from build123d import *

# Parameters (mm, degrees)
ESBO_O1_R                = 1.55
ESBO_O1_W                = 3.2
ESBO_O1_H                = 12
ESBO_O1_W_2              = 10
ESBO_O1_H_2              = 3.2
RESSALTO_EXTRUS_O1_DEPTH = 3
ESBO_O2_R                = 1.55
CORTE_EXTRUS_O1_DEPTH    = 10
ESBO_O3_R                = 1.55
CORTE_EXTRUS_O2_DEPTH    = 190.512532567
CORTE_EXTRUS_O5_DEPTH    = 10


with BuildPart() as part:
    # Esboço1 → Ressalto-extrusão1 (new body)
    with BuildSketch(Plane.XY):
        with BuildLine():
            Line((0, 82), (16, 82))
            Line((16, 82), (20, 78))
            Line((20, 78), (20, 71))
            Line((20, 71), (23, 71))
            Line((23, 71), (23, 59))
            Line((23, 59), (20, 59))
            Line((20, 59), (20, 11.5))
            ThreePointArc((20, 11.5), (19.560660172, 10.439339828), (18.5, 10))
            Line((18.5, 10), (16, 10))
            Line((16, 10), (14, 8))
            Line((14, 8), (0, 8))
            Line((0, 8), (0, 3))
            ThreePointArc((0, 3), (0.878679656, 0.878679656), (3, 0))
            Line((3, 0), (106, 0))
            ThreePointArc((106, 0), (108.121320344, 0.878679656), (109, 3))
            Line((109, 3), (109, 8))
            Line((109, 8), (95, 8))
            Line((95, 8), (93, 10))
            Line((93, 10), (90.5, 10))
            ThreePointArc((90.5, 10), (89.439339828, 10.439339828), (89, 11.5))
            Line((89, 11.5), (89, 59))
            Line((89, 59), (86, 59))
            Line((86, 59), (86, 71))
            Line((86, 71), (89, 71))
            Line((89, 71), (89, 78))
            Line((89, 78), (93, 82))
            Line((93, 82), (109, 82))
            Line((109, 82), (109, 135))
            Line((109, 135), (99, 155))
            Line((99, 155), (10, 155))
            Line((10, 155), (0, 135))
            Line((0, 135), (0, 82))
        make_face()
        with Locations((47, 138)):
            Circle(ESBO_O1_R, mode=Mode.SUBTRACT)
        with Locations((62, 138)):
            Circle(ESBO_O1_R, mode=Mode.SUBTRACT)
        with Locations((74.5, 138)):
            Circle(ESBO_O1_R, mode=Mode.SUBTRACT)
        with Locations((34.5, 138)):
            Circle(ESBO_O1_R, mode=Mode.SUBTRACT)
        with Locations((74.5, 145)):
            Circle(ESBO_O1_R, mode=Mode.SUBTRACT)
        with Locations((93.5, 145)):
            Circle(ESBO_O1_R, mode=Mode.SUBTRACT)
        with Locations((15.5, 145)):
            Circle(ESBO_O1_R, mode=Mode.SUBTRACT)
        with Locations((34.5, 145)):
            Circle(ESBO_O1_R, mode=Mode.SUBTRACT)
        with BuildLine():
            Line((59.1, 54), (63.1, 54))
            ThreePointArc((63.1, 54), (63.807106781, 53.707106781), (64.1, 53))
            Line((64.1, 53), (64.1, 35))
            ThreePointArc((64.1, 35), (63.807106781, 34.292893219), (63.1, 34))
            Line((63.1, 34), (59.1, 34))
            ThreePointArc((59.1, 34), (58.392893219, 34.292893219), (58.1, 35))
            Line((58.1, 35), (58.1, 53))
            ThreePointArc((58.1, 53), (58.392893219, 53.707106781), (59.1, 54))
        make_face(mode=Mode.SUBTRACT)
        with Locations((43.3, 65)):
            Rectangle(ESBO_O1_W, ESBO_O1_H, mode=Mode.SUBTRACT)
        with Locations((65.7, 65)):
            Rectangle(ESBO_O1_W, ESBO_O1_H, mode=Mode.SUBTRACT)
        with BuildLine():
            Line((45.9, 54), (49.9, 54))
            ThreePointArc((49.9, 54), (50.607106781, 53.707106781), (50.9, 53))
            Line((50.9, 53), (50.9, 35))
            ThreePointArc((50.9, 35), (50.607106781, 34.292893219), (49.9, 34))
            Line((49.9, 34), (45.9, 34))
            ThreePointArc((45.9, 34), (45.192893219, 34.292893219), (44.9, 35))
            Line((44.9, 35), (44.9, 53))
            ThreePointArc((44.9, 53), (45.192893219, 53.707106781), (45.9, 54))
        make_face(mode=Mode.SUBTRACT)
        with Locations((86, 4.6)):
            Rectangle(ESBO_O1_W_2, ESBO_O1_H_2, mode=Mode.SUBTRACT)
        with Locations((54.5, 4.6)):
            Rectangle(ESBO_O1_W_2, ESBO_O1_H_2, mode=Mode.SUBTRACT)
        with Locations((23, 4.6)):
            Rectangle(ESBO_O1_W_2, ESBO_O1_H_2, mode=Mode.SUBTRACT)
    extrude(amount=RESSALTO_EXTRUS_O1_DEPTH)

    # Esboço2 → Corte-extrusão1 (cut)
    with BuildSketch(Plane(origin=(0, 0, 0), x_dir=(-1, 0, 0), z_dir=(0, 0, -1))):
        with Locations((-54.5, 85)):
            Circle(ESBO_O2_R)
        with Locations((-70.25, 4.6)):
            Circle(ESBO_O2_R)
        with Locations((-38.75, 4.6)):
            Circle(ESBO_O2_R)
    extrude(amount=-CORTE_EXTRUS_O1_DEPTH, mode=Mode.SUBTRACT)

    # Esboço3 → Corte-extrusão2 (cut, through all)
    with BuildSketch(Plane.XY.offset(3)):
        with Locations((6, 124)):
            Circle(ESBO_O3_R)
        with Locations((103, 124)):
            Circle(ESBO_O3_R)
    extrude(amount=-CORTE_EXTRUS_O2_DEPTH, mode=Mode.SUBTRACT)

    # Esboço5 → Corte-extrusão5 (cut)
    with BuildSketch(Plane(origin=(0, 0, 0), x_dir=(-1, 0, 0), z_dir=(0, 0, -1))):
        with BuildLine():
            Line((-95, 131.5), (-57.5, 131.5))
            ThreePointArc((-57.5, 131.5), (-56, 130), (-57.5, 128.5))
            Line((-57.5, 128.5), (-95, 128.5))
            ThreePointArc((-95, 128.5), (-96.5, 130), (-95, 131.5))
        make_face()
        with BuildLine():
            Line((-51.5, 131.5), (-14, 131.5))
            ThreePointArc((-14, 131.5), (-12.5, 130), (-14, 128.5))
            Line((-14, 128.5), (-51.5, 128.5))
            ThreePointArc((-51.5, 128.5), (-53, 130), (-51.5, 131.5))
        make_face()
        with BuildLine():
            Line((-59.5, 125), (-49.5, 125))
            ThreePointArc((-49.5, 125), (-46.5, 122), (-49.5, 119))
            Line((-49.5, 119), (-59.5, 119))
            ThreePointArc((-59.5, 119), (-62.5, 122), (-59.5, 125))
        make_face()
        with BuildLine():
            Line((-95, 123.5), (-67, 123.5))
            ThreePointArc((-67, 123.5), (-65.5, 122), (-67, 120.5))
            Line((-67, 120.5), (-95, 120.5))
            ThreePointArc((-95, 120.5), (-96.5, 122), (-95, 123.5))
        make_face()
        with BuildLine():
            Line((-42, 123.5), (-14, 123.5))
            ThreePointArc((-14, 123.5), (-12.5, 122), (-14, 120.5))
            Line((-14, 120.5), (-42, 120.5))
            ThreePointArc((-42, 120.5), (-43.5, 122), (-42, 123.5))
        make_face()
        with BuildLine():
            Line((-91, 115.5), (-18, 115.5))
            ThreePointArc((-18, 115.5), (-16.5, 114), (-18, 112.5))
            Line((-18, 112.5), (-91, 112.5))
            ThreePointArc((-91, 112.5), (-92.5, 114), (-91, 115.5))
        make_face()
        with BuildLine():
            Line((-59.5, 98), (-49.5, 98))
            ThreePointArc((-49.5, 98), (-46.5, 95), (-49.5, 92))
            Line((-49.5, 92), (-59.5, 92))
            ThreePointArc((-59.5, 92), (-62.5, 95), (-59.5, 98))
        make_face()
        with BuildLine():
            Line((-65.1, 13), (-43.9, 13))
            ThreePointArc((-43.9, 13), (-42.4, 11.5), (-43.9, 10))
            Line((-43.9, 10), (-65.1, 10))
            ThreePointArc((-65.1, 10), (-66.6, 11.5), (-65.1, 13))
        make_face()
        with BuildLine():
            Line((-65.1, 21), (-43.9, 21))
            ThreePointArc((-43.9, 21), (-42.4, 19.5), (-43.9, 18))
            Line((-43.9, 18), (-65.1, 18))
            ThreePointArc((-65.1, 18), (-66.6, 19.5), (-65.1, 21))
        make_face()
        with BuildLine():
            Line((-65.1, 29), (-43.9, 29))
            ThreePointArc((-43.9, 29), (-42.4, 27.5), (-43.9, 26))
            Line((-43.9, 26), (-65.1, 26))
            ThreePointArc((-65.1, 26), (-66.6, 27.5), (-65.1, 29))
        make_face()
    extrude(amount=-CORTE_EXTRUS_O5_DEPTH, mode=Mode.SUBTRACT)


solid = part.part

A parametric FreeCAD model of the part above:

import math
import FreeCAD as App
import Part
import Sketcher

V = App.Vector
Q = App.Units.Quantity


def add_polygon(sketch, points):
    """Adds a closed chain of lines whose ends are joined by coincident constraints."""
    first, n = sketch.GeometryCount, len(points)
    for a, b in zip(points, points[1:] + points[:1]):
        sketch.addGeometry(Part.LineSegment(App.Vector(*a, 0), App.Vector(*b, 0)), False)
    for i in range(n):
        sketch.addConstraint(Sketcher.Constraint("Coincident", first + i, 2, first + (i + 1) % n, 1))

doc = App.newDocument("Part")
params = doc.addObject("Spreadsheet::Sheet", "Params")
for row, (alias, value) in enumerate([
    ("sketch1_radius", "3 mm"),
    ("sketch1_radius2", "1 mm"),
    ("sketch1_diameter", "3.1 mm"),
    ("sketch1_radius3", "1.5 mm"),
    ("sketch1_width", "16 mm"),
    ("pad1_length", "3 mm"),
    ("sketch2_diameter", "3.1 mm"),
    ("pocket1_length", "10 mm"),
    ("sketch3_diameter", "3.1 mm"),
    ("sketch4_radius", "3 mm"),
    ("sketch4_radius2", "1.5 mm"),
    ("sketch4_width", "10 mm"),
    ("sketch4_width2", "28 mm"),
    ("sketch4_width3", "73 mm"),
    ("pocket3_length", "10 mm"),
], start=1):
    params.set(f"A{row}", alias)
    params.set(f"B{row}", "=" + value)
    params.setAlias(f"B{row}", alias)

body = doc.addObject("PartDesign::Body", "Body")

sketch1 = body.newObject("Sketcher::SketchObject", "Sketch")
sketch1.AttachmentSupport = (doc.getObject("XY_Plane"), [""])
sketch1.MapMode = "FlatFace"
sketch1.addGeometry(Part.LineSegment(V(0, 82, 0), V(16, 82, 0)), False)
sketch1.addGeometry(Part.LineSegment(V(16, 82, 0), V(20, 78, 0)), False)
sketch1.addGeometry(Part.LineSegment(V(20, 78, 0), V(20, 71, 0)), False)
sketch1.addGeometry(Part.LineSegment(V(20, 71, 0), V(23, 71, 0)), False)
sketch1.addGeometry(Part.LineSegment(V(23, 71, 0), V(23, 59, 0)), False)
sketch1.addGeometry(Part.LineSegment(V(23, 59, 0), V(20, 59, 0)), False)
sketch1.addGeometry(Part.LineSegment(V(20, 59, 0), V(20, 11.5, 0)), False)
sketch1.addGeometry(Part.ArcOfCircle(Part.Circle(V(18.5, 11.5, 0), V(0, 0, 1), 1.5), math.radians(-90), math.radians(0)), False)
sketch1.addGeometry(Part.LineSegment(V(18.5, 10, 0), V(16, 10, 0)), False)
sketch1.addGeometry(Part.LineSegment(V(16, 10, 0), V(14, 8, 0)), False)
sketch1.addGeometry(Part.LineSegment(V(14, 8, 0), V(0, 8, 0)), False)
sketch1.addGeometry(Part.LineSegment(V(0, 8, 0), V(0, 3, 0)), False)
sketch1.addGeometry(Part.ArcOfCircle(Part.Circle(V(3, 3, 0), V(0, 0, 1), 3), math.radians(180), math.radians(270)), False)
sketch1.addGeometry(Part.LineSegment(V(3, 0, 0), V(106, 0, 0)), False)
sketch1.addGeometry(Part.ArcOfCircle(Part.Circle(V(106, 3, 0), V(0, 0, 1), 3), math.radians(-90), math.radians(0)), False)
sketch1.addGeometry(Part.LineSegment(V(109, 3, 0), V(109, 8, 0)), False)
sketch1.addGeometry(Part.LineSegment(V(109, 8, 0), V(95, 8, 0)), False)
sketch1.addGeometry(Part.LineSegment(V(95, 8, 0), V(93, 10, 0)), False)
sketch1.addGeometry(Part.LineSegment(V(93, 10, 0), V(90.5, 10, 0)), False)
sketch1.addGeometry(Part.ArcOfCircle(Part.Circle(V(90.5, 11.5, 0), V(0, 0, 1), 1.5), math.radians(180), math.radians(270)), False)
sketch1.addGeometry(Part.LineSegment(V(89, 11.5, 0), V(89, 59, 0)), False)
sketch1.addGeometry(Part.LineSegment(V(89, 59, 0), V(86, 59, 0)), False)
sketch1.addGeometry(Part.LineSegment(V(86, 59, 0), V(86, 71, 0)), False)
sketch1.addGeometry(Part.LineSegment(V(86, 71, 0), V(89, 71, 0)), False)
sketch1.addGeometry(Part.LineSegment(V(89, 71, 0), V(89, 78, 0)), False)
sketch1.addGeometry(Part.LineSegment(V(89, 78, 0), V(93, 82, 0)), False)
sketch1.addGeometry(Part.LineSegment(V(93, 82, 0), V(109, 82, 0)), False)
sketch1.addGeometry(Part.LineSegment(V(109, 82, 0), V(109, 135, 0)), False)
sketch1.addGeometry(Part.LineSegment(V(109, 135, 0), V(99, 155, 0)), False)
sketch1.addGeometry(Part.LineSegment(V(99, 155, 0), V(10, 155, 0)), False)
sketch1.addGeometry(Part.LineSegment(V(10, 155, 0), V(0, 135, 0)), False)
sketch1.addGeometry(Part.LineSegment(V(0, 135, 0), V(0, 82, 0)), False)
add_polygon(sketch1, [(28, 3), (18, 3), (18, 6.2), (28, 6.2)])
add_polygon(sketch1, [(59.5, 3), (49.5, 3), (49.5, 6.2), (59.5, 6.2)])
sketch1.addGeometry(Part.ArcOfCircle(Part.Circle(V(45.9, 53, 0), V(0, 0, 1), 1), math.radians(90), math.radians(180)), False)
sketch1.addGeometry(Part.LineSegment(V(45.9, 54, 0), V(49.9, 54, 0)), False)
sketch1.addGeometry(Part.ArcOfCircle(Part.Circle(V(49.9, 53, 0), V(0, 0, 1), 1), math.radians(0), math.radians(90)), False)
sketch1.addGeometry(Part.LineSegment(V(50.9, 53, 0), V(50.9, 35, 0)), False)
sketch1.addGeometry(Part.ArcOfCircle(Part.Circle(V(49.9, 35, 0), V(0, 0, 1), 1), math.radians(-90), math.radians(0)), False)
sketch1.addGeometry(Part.LineSegment(V(49.9, 34, 0), V(45.9, 34, 0)), False)
sketch1.addGeometry(Part.ArcOfCircle(Part.Circle(V(45.9, 35, 0), V(0, 0, 1), 1), math.radians(-180), math.radians(-90)), False)
sketch1.addGeometry(Part.LineSegment(V(44.9, 35, 0), V(44.9, 53, 0)), False)
add_polygon(sketch1, [(44.9, 59), (41.7, 59), (41.7, 71), (44.9, 71)])
add_polygon(sketch1, [(91, 3), (81, 3), (81, 6.2), (91, 6.2)])
sketch1.addGeometry(Part.ArcOfCircle(Part.Circle(V(59.1, 53, 0), V(0, 0, 1), 1), math.radians(90), math.radians(180)), False)
sketch1.addGeometry(Part.LineSegment(V(59.1, 54, 0), V(63.1, 54, 0)), False)
sketch1.addGeometry(Part.ArcOfCircle(Part.Circle(V(63.1, 53, 0), V(0, 0, 1), 1), math.radians(0), math.radians(90)), False)
sketch1.addGeometry(Part.LineSegment(V(64.1, 53, 0), V(64.1, 35, 0)), False)
sketch1.addGeometry(Part.ArcOfCircle(Part.Circle(V(63.1, 35, 0), V(0, 0, 1), 1), math.radians(-90), math.radians(0)), False)
sketch1.addGeometry(Part.LineSegment(V(63.1, 34, 0), V(59.1, 34, 0)), False)
sketch1.addGeometry(Part.ArcOfCircle(Part.Circle(V(59.1, 35, 0), V(0, 0, 1), 1), math.radians(-180), math.radians(-90)), False)
sketch1.addGeometry(Part.LineSegment(V(58.1, 35, 0), V(58.1, 53, 0)), False)
add_polygon(sketch1, [(67.3, 59), (64.1, 59), (64.1, 71), (67.3, 71)])
sketch1.addGeometry(Part.Circle(V(15.5, 145, 0), V(0, 0, 1), 1.6), False)
sketch1.addGeometry(Part.Circle(V(34.5, 138, 0), V(0, 0, 1), 1.6), False)
sketch1.addGeometry(Part.Circle(V(34.5, 145, 0), V(0, 0, 1), 1.6), False)
sketch1.addGeometry(Part.Circle(V(47, 138, 0), V(0, 0, 1), 1.6), False)
sketch1.addGeometry(Part.Circle(V(62, 138, 0), V(0, 0, 1), 1.6), False)
sketch1.addGeometry(Part.Circle(V(74.5, 138, 0), V(0, 0, 1), 1.6), False)
sketch1.addGeometry(Part.Circle(V(74.5, 145, 0), V(0, 0, 1), 1.6), False)
sketch1.addGeometry(Part.Circle(V(93.5, 145, 0), V(0, 0, 1), 1.6), False)
sketch1.addConstraint([
    Sketcher.Constraint("Coincident", 0, 2, 1, 1),
    Sketcher.Constraint("Coincident", 1, 2, 2, 1),
    Sketcher.Constraint("Coincident", 2, 2, 3, 1),
    Sketcher.Constraint("Coincident", 3, 2, 4, 1),
    Sketcher.Constraint("Coincident", 4, 2, 5, 1),
    Sketcher.Constraint("Coincident", 5, 2, 6, 1),
    Sketcher.Constraint("Tangent", 6, 2, 7, 2),
    Sketcher.Constraint("Tangent", 7, 1, 8, 1),
    Sketcher.Constraint("Coincident", 8, 2, 9, 1),
    Sketcher.Constraint("Coincident", 9, 2, 10, 1),
    Sketcher.Constraint("Coincident", 10, 2, 11, 1),
    Sketcher.Constraint("Tangent", 11, 2, 12, 1),
    Sketcher.Constraint("Tangent", 12, 2, 13, 1),
    Sketcher.Constraint("Tangent", 13, 2, 14, 1),
    Sketcher.Constraint("Tangent", 14, 2, 15, 1),
    Sketcher.Constraint("Coincident", 15, 2, 16, 1),
    Sketcher.Constraint("Coincident", 16, 2, 17, 1),
    Sketcher.Constraint("Coincident", 17, 2, 18, 1),
    Sketcher.Constraint("Tangent", 18, 2, 19, 2),
    Sketcher.Constraint("Tangent", 19, 1, 20, 1),
    Sketcher.Constraint("Coincident", 20, 2, 21, 1),
    Sketcher.Constraint("Coincident", 21, 2, 22, 1),
    Sketcher.Constraint("Coincident", 22, 2, 23, 1),
    Sketcher.Constraint("Coincident", 23, 2, 24, 1),
    Sketcher.Constraint("Coincident", 24, 2, 25, 1),
    Sketcher.Constraint("Coincident", 25, 2, 26, 1),
    Sketcher.Constraint("Coincident", 26, 2, 27, 1),
    Sketcher.Constraint("Coincident", 27, 2, 28, 1),
    Sketcher.Constraint("Coincident", 28, 2, 29, 1),
    Sketcher.Constraint("Coincident", 29, 2, 30, 1),
    Sketcher.Constraint("Coincident", 30, 2, 31, 1),
    Sketcher.Constraint("Coincident", 31, 2, 0, 1),
    Sketcher.Constraint("Tangent", 40, 1, 41, 1),
    Sketcher.Constraint("Tangent", 41, 2, 42, 2),
    Sketcher.Constraint("Tangent", 42, 1, 43, 1),
    Sketcher.Constraint("Tangent", 43, 2, 44, 2),
    Sketcher.Constraint("Tangent", 44, 1, 45, 1),
    Sketcher.Constraint("Tangent", 45, 2, 46, 2),
    Sketcher.Constraint("Tangent", 46, 1, 47, 1),
    Sketcher.Constraint("Tangent", 47, 2, 40, 2),
    Sketcher.Constraint("Tangent", 56, 1, 57, 1),
    Sketcher.Constraint("Tangent", 57, 2, 58, 2),
    Sketcher.Constraint("Tangent", 58, 1, 59, 1),
    Sketcher.Constraint("Tangent", 59, 2, 60, 2),
    Sketcher.Constraint("Tangent", 60, 1, 61, 1),
    Sketcher.Constraint("Tangent", 61, 2, 62, 2),
    Sketcher.Constraint("Tangent", 62, 1, 63, 1),
    Sketcher.Constraint("Tangent", 63, 2, 56, 2),
    Sketcher.Constraint("Horizontal", 0),
    Sketcher.Constraint("Vertical", 2),
    Sketcher.Constraint("Horizontal", 3),
    Sketcher.Constraint("Vertical", 4),
    Sketcher.Constraint("Horizontal", 5),
    Sketcher.Constraint("Vertical", 6),
    Sketcher.Constraint("Horizontal", 8),
    Sketcher.Constraint("Horizontal", 10),
    Sketcher.Constraint("Vertical", 11),
    Sketcher.Constraint("Horizontal", 13),
    Sketcher.Constraint("Vertical", 15),
    Sketcher.Constraint("Horizontal", 16),
    Sketcher.Constraint("Horizontal", 18),
    Sketcher.Constraint("Vertical", 20),
    Sketcher.Constraint("Horizontal", 21),
    Sketcher.Constraint("Vertical", 22),
    Sketcher.Constraint("Horizontal", 23),
    Sketcher.Constraint("Vertical", 24),
    Sketcher.Constraint("Horizontal", 26),
    Sketcher.Constraint("Vertical", 27),
    Sketcher.Constraint("Horizontal", 29),
    Sketcher.Constraint("Vertical", 31),
    Sketcher.Constraint("Horizontal", 32),
    Sketcher.Constraint("Vertical", 33),
    Sketcher.Constraint("Horizontal", 34),
    Sketcher.Constraint("Vertical", 35),
    Sketcher.Constraint("Horizontal", 36),
    Sketcher.Constraint("Vertical", 37),
    Sketcher.Constraint("Horizontal", 38),
    Sketcher.Constraint("Vertical", 39),
    Sketcher.Constraint("Horizontal", 41),
    Sketcher.Constraint("Vertical", 43),
    Sketcher.Constraint("Horizontal", 45),
    Sketcher.Constraint("Vertical", 47),
    Sketcher.Constraint("Horizontal", 48),
    Sketcher.Constraint("Vertical", 49),
    Sketcher.Constraint("Horizontal", 50),
    Sketcher.Constraint("Vertical", 51),
    Sketcher.Constraint("Horizontal", 52),
    Sketcher.Constraint("Vertical", 53),
    Sketcher.Constraint("Horizontal", 54),
    Sketcher.Constraint("Vertical", 55),
    Sketcher.Constraint("Horizontal", 57),
    Sketcher.Constraint("Vertical", 59),
    Sketcher.Constraint("Horizontal", 61),
    Sketcher.Constraint("Vertical", 63),
    Sketcher.Constraint("Horizontal", 64),
    Sketcher.Constraint("Vertical", 65),
    Sketcher.Constraint("Horizontal", 66),
    Sketcher.Constraint("Vertical", 67),
    Sketcher.Constraint("Equal", 12, 14),
    Sketcher.Constraint("Equal", 7, 19),
    Sketcher.Constraint("Equal", 40, 42),
    Sketcher.Constraint("Equal", 42, 44),
    Sketcher.Constraint("Equal", 44, 46),
    Sketcher.Constraint("Equal", 46, 56),
    Sketcher.Constraint("Equal", 56, 58),
    Sketcher.Constraint("Equal", 58, 60),
    Sketcher.Constraint("Equal", 60, 62),
    Sketcher.Constraint("Equal", 68, 69),
    Sketcher.Constraint("Equal", 69, 70),
    Sketcher.Constraint("Equal", 70, 71),
    Sketcher.Constraint("Equal", 71, 72),
    Sketcher.Constraint("Equal", 72, 73),
    Sketcher.Constraint("Equal", 73, 74),
    Sketcher.Constraint("Equal", 74, 75),
    Sketcher.Constraint("PointOnObject", 10, 2, -2),
    Sketcher.Constraint("PointOnObject", 12, 2, -1),
    Sketcher.Constraint("PointOnObject", 30, 2, -2),
    Sketcher.Constraint("Perpendicular", 1, 9),
    Sketcher.Constraint("Perpendicular", 9, 17),
    Sketcher.Constraint("Perpendicular", 17, 25),
    Sketcher.Constraint("Horizontal", 7, 3, 19, 3),
    Sketcher.Constraint("Horizontal", 42, 3, 56, 3),
    Sketcher.Constraint("Horizontal", 46, 3, 60, 3),
    Sketcher.Constraint("Horizontal", 68, 3, 70, 3),
    Sketcher.Constraint("Horizontal", 69, 3, 71, 3),
    Sketcher.Constraint("Horizontal", 71, 3, 72, 3),
    Sketcher.Constraint("Horizontal", 72, 3, 73, 3),
    Sketcher.Constraint("Horizontal", 70, 3, 74, 3),
    Sketcher.Constraint("Horizontal", 74, 3, 75, 3),
    Sketcher.Constraint("Horizontal", 10, 2, 15, 2),
    Sketcher.Constraint("Horizontal", 5, 2, 20, 2),
    Sketcher.Constraint("Horizontal", 3, 2, 22, 2),
    Sketcher.Constraint("Horizontal", 1, 2, 24, 2),
    Sketcher.Constraint("Horizontal", 0, 2, 25, 2),
    Sketcher.Constraint("Horizontal", 27, 2, 30, 2),
    Sketcher.Constraint("Horizontal", 14, 2, 32, 2),
    Sketcher.Constraint("Horizontal", 35, 2, 36, 2),
    Sketcher.Constraint("Horizontal", 34, 2, 37, 2),
    Sketcher.Constraint("Horizontal", 21, 2, 48, 2),
    Sketcher.Constraint("Horizontal", 23, 2, 49, 2),
    Sketcher.Constraint("Horizontal", 39, 2, 52, 2),
    Sketcher.Constraint("Horizontal", 38, 2, 53, 2),
    Sketcher.Constraint("Horizontal", 51, 2, 64, 2),
    Sketcher.Constraint("Horizontal", 50, 2, 65, 2),
    Sketcher.Constraint("Vertical", 69, 3, 70, 3),
    Sketcher.Constraint("Vertical", 73, 3, 74, 3),
    Sketcher.Constraint("Vertical", 2, 2, 5, 2),
    Sketcher.Constraint("Vertical", 0, 2, 8, 2),
    Sketcher.Constraint("Vertical", 20, 2, 23, 2),
    Sketcher.Constraint("Vertical", 17, 2, 25, 2),
    Sketcher.Constraint("Vertical", 15, 2, 26, 2),
    Sketcher.Constraint("Vertical", 47, 2, 50, 2),
    Sketcher.Constraint("Vertical", 59, 2, 64, 2),
    Sketcher.Constraint("Equal", 10, 16),
    Sketcher.Constraint("Equal", 8, 18),
    Sketcher.Constraint("Equal", 5, 21),
    Sketcher.Constraint("Equal", 34, 36),
    Sketcher.Constraint("Equal", 38, 52),
    Sketcher.Constraint("Equal", 45, 57),
    Sketcher.Constraint("Equal", 50, 64),
    Sketcher.Constraint("Equal", 66, 33),
    Sketcher.Constraint("Equal", 28, 30),
    Sketcher.Constraint("Radius", 12, Q("3 mm")),
    Sketcher.Constraint("Radius", 40, Q("1 mm")),
    Sketcher.Constraint("Diameter", 68, Q("3.1 mm")),
    Sketcher.Constraint("Radius", 7, Q("1.5 mm")),
    Sketcher.Constraint("DistanceX", 0, 1, 0, 2, Q("16 mm")),
    Sketcher.Constraint("DistanceX", 3, 1, 3, 2, Q("3 mm")),
    Sketcher.Constraint("DistanceX", 10, 2, 10, 1, Q("14 mm")),
    Sketcher.Constraint("DistanceX", 13, 1, 13, 2, Q("103 mm")),
    Sketcher.Constraint("DistanceX", 29, 2, 29, 1, Q("89 mm")),
    Sketcher.Constraint("DistanceX", 32, 2, 32, 1, Q("10 mm")),
    Sketcher.Constraint("DistanceX", 41, 1, 41, 2, Q("4 mm")),
    Sketcher.Constraint("DistanceY", 2, 2, 2, 1, Q("7 mm")),
    Sketcher.Constraint("DistanceY", 4, 2, 4, 1, Q("12 mm")),
    Sketcher.Constraint("DistanceY", 11, 2, 11, 1, Q("5 mm")),
    Sketcher.Constraint("DistanceY", 27, 1, 27, 2, Q("53 mm")),
    Sketcher.Constraint("DistanceY", 43, 2, 43, 1, Q("18 mm")),
    Sketcher.Constraint("DistanceX", 8, 2, 8, 1, Q("2.5 mm")),
    Sketcher.Constraint("DistanceX", 48, 2, 48, 1, Q("3.2 mm")),
    Sketcher.Constraint("DistanceY", 6, 2, 6, 1, Q("47.5 mm")),
    Sketcher.Constraint("DistanceY", -1, 1, 40, 3, Q("53 mm")),
    Sketcher.Constraint("DistanceY", -1, 1, 68, 3, Q("145 mm")),
    Sketcher.Constraint("DistanceY", -1, 1, 69, 3, Q("138 mm")),
    Sketcher.Constraint("DistanceX", -1, 1, 71, 3, Q("47 mm")),
    Sketcher.Constraint("DistanceX", -1, 1, 72, 3, Q("62 mm")),
    Sketcher.Constraint("DistanceY", -1, 1, 28, 2, Q("155 mm")),
    Sketcher.Constraint("DistanceX", -1, 1, 32, 2, Q("18 mm")),
    Sketcher.Constraint("DistanceX", -1, 1, 52, 2, Q("81 mm")),
    Sketcher.Constraint("DistanceX", -1, 1, 40, 3, Q("45.9 mm")),
    Sketcher.Constraint("DistanceX", -1, 1, 56, 3, Q("59.1 mm")),
    Sketcher.Constraint("DistanceX", -1, 1, 68, 3, Q("15.5 mm")),
    Sketcher.Constraint("DistanceX", -1, 1, 69, 3, Q("34.5 mm")),
    Sketcher.Constraint("DistanceX", -1, 1, 73, 3, Q("74.5 mm")),
    Sketcher.Constraint("DistanceX", -1, 1, 75, 3, Q("93.5 mm")),
    Sketcher.Constraint("DistanceX", -1, 1, 36, 2, Q("49.5 mm")),
])
sketch1.setExpression("Constraints[182]", "Params.sketch1_radius")
sketch1.setExpression("Constraints[183]", "Params.sketch1_radius2")
sketch1.setExpression("Constraints[184]", "Params.sketch1_diameter")
sketch1.setExpression("Constraints[185]", "Params.sketch1_radius3")
sketch1.setExpression("Constraints[186]", "Params.sketch1_width")
pad1 = body.newObject("PartDesign::Pad", "Pad")
pad1.Profile = sketch1
pad1.setExpression("Length", "Params.pad1_length")

sketch2 = body.newObject("Sketcher::SketchObject", "Sketch001")
sketch2.AttachmentSupport = (doc.getObject("XY_Plane"), [""])
sketch2.MapMode = "FlatFace"
sketch2.addGeometry([
    Part.Circle(V(54.5, 85, 0), V(0, 0, 1), 1.6),
    Part.Circle(V(70.2, 4.6, 0), V(0, 0, 1), 1.6),
    Part.Circle(V(38.8, 4.6, 0), V(0, 0, 1), 1.6),
], False)
sketch2.addConstraint([
    Sketcher.Constraint("Equal", 0, 1),
    Sketcher.Constraint("Equal", 1, 2),
    Sketcher.Constraint("Horizontal", 1, 3, 2, 3),
    Sketcher.Constraint("Diameter", 0, Q("3.1 mm")),
    Sketcher.Constraint("DistanceY", -1, 1, 0, 3, Q("85 mm")),
    Sketcher.Constraint("DistanceX", -1, 1, 0, 3, Q("54.5 mm")),
    Sketcher.Constraint("DistanceY", -1, 1, 1, 3, Q("4.6 mm")),
    Sketcher.Constraint("DistanceX", 2, 3, 1, 3, Q("31.5 mm")),
    Sketcher.Constraint("DistanceX", -1, 1, 1, 3, Q("70.25 mm")),
])
sketch2.setExpression("Constraints[3]", "Params.sketch2_diameter")
pocket1 = body.newObject("PartDesign::Pocket", "Pocket")
pocket1.Profile = sketch2
pocket1.setExpression("Length", "Params.pocket1_length")
pocket1.Reversed = True

sketch3 = body.newObject("Sketcher::SketchObject", "Sketch002")
sketch3.AttachmentSupport = (doc.getObject("XY_Plane"), [""])
sketch3.MapMode = "FlatFace"
sketch3.AttachmentOffset = App.Placement(V(0, 0, 3), App.Rotation())
sketch3.addGeometry([
    Part.Circle(V(6, 124, 0), V(0, 0, 1), 1.6),
    Part.Circle(V(103, 124, 0), V(0, 0, 1), 1.6),
], False)
sketch3.addConstraint([
    Sketcher.Constraint("Equal", 0, 1),
    Sketcher.Constraint("Horizontal", 0, 3, 1, 3),
    Sketcher.Constraint("Diameter", 0, Q("3.1 mm")),
    Sketcher.Constraint("DistanceX", -1, 1, 0, 3, Q("6 mm")),
    Sketcher.Constraint("DistanceY", -1, 1, 0, 3, Q("124 mm")),
    Sketcher.Constraint("DistanceX", -1, 1, 1, 3, Q("103 mm")),
])
sketch3.setExpression("Constraints[2]", "Params.sketch3_diameter")
pocket2 = body.newObject("PartDesign::Pocket", "Pocket001")
pocket2.Profile = sketch3
pocket2.Type = "ThroughAll"

sketch4 = body.newObject("Sketcher::SketchObject", "Sketch003")
sketch4.AttachmentSupport = (doc.getObject("XY_Plane"), [""])
sketch4.MapMode = "FlatFace"
sketch4.addGeometry([
    Part.LineSegment(V(57.5, 131.5, 0), V(95, 131.5, 0)),
    Part.ArcOfCircle(Part.Circle(V(95, 130, 0), V(0, 0, 1), 1.5), math.radians(-90), math.radians(90)),
    Part.LineSegment(V(95, 128.5, 0), V(57.5, 128.5, 0)),
    Part.ArcOfCircle(Part.Circle(V(57.5, 130, 0), V(0, 0, 1), 1.5), math.radians(90), math.radians(270)),
    Part.LineSegment(V(14, 131.5, 0), V(51.5, 131.5, 0)),
    Part.ArcOfCircle(Part.Circle(V(51.5, 130, 0), V(0, 0, 1), 1.5), math.radians(-90), math.radians(90)),
    Part.LineSegment(V(51.5, 128.5, 0), V(14, 128.5, 0)),
    Part.ArcOfCircle(Part.Circle(V(14, 130, 0), V(0, 0, 1), 1.5), math.radians(90), math.radians(270)),
    Part.LineSegment(V(49.5, 125, 0), V(59.5, 125, 0)),
    Part.ArcOfCircle(Part.Circle(V(59.5, 122, 0), V(0, 0, 1), 3), math.radians(-90), math.radians(90)),
    Part.LineSegment(V(59.5, 119, 0), V(49.5, 119, 0)),
    Part.ArcOfCircle(Part.Circle(V(49.5, 122, 0), V(0, 0, 1), 3), math.radians(90), math.radians(270)),
    Part.LineSegment(V(67, 123.5, 0), V(95, 123.5, 0)),
    Part.ArcOfCircle(Part.Circle(V(95, 122, 0), V(0, 0, 1), 1.5), math.radians(-90), math.radians(90)),
    Part.LineSegment(V(95, 120.5, 0), V(67, 120.5, 0)),
    Part.ArcOfCircle(Part.Circle(V(67, 122, 0), V(0, 0, 1), 1.5), math.radians(90), math.radians(270)),
    Part.LineSegment(V(14, 123.5, 0), V(42, 123.5, 0)),
    Part.ArcOfCircle(Part.Circle(V(42, 122, 0), V(0, 0, 1), 1.5), math.radians(-90), math.radians(90)),
    Part.LineSegment(V(42, 120.5, 0), V(14, 120.5, 0)),
    Part.ArcOfCircle(Part.Circle(V(14, 122, 0), V(0, 0, 1), 1.5), math.radians(90), math.radians(270)),
    Part.LineSegment(V(18, 115.5, 0), V(91, 115.5, 0)),
    Part.ArcOfCircle(Part.Circle(V(91, 114, 0), V(0, 0, 1), 1.5), math.radians(-90), math.radians(90)),
    Part.LineSegment(V(91, 112.5, 0), V(18, 112.5, 0)),
    Part.ArcOfCircle(Part.Circle(V(18, 114, 0), V(0, 0, 1), 1.5), math.radians(90), math.radians(270)),
    Part.LineSegment(V(49.5, 98, 0), V(59.5, 98, 0)),
    Part.ArcOfCircle(Part.Circle(V(59.5, 95, 0), V(0, 0, 1), 3), math.radians(-90), math.radians(90)),
    Part.LineSegment(V(59.5, 92, 0), V(49.5, 92, 0)),
    Part.ArcOfCircle(Part.Circle(V(49.5, 95, 0), V(0, 0, 1), 3), math.radians(90), math.radians(270)),
    Part.LineSegment(V(43.9, 13, 0), V(65.1, 13, 0)),
    Part.ArcOfCircle(Part.Circle(V(65.1, 11.5, 0), V(0, 0, 1), 1.5), math.radians(-90), math.radians(90)),
    Part.LineSegment(V(65.1, 10, 0), V(43.9, 10, 0)),
    Part.ArcOfCircle(Part.Circle(V(43.9, 11.5, 0), V(0, 0, 1), 1.5), math.radians(90), math.radians(270)),
    Part.LineSegment(V(43.9, 21, 0), V(65.1, 21, 0)),
    Part.ArcOfCircle(Part.Circle(V(65.1, 19.5, 0), V(0, 0, 1), 1.5), math.radians(-90), math.radians(90)),
    Part.LineSegment(V(65.1, 18, 0), V(43.9, 18, 0)),
    Part.ArcOfCircle(Part.Circle(V(43.9, 19.5, 0), V(0, 0, 1), 1.5), math.radians(90), math.radians(270)),
    Part.LineSegment(V(43.9, 29, 0), V(65.1, 29, 0)),
    Part.ArcOfCircle(Part.Circle(V(65.1, 27.5, 0), V(0, 0, 1), 1.5), math.radians(-90), math.radians(90)),
    Part.LineSegment(V(65.1, 26, 0), V(43.9, 26, 0)),
    Part.ArcOfCircle(Part.Circle(V(43.9, 27.5, 0), V(0, 0, 1), 1.5), math.radians(90), math.radians(270)),
], False)
sketch4.addConstraint([
    Sketcher.Constraint("Tangent", 0, 2, 1, 2),
    Sketcher.Constraint("Tangent", 1, 1, 2, 1),
    Sketcher.Constraint("Tangent", 2, 2, 3, 2),
    Sketcher.Constraint("Tangent", 3, 1, 0, 1),
    Sketcher.Constraint("Tangent", 4, 2, 5, 2),
    Sketcher.Constraint("Tangent", 5, 1, 6, 1),
    Sketcher.Constraint("Tangent", 6, 2, 7, 2),
    Sketcher.Constraint("Tangent", 7, 1, 4, 1),
    Sketcher.Constraint("Tangent", 8, 2, 9, 2),
    Sketcher.Constraint("Tangent", 9, 1, 10, 1),
    Sketcher.Constraint("Tangent", 10, 2, 11, 2),
    Sketcher.Constraint("Tangent", 11, 1, 8, 1),
    Sketcher.Constraint("Tangent", 12, 2, 13, 2),
    Sketcher.Constraint("Tangent", 13, 1, 14, 1),
    Sketcher.Constraint("Tangent", 14, 2, 15, 2),
    Sketcher.Constraint("Tangent", 15, 1, 12, 1),
    Sketcher.Constraint("Tangent", 16, 2, 17, 2),
    Sketcher.Constraint("Tangent", 17, 1, 18, 1),
    Sketcher.Constraint("Tangent", 18, 2, 19, 2),
    Sketcher.Constraint("Tangent", 19, 1, 16, 1),
    Sketcher.Constraint("Tangent", 20, 2, 21, 2),
    Sketcher.Constraint("Tangent", 21, 1, 22, 1),
    Sketcher.Constraint("Tangent", 22, 2, 23, 2),
    Sketcher.Constraint("Tangent", 23, 1, 20, 1),
    Sketcher.Constraint("Tangent", 24, 2, 25, 2),
    Sketcher.Constraint("Tangent", 25, 1, 26, 1),
    Sketcher.Constraint("Tangent", 26, 2, 27, 2),
    Sketcher.Constraint("Tangent", 27, 1, 24, 1),
    Sketcher.Constraint("Tangent", 28, 2, 29, 2),
    Sketcher.Constraint("Tangent", 29, 1, 30, 1),
    Sketcher.Constraint("Tangent", 30, 2, 31, 2),
    Sketcher.Constraint("Tangent", 31, 1, 28, 1),
    Sketcher.Constraint("Tangent", 32, 2, 33, 2),
    Sketcher.Constraint("Tangent", 33, 1, 34, 1),
    Sketcher.Constraint("Tangent", 34, 2, 35, 2),
    Sketcher.Constraint("Tangent", 35, 1, 32, 1),
    Sketcher.Constraint("Tangent", 36, 2, 37, 2),
    Sketcher.Constraint("Tangent", 37, 1, 38, 1),
    Sketcher.Constraint("Tangent", 38, 2, 39, 2),
    Sketcher.Constraint("Tangent", 39, 1, 36, 1),
    Sketcher.Constraint("Horizontal", 0),
    Sketcher.Constraint("Horizontal", 2),
    Sketcher.Constraint("Horizontal", 4),
    Sketcher.Constraint("Horizontal", 6),
    Sketcher.Constraint("Horizontal", 8),
    Sketcher.Constraint("Horizontal", 10),
    Sketcher.Constraint("Horizontal", 12),
    Sketcher.Constraint("Horizontal", 14),
    Sketcher.Constraint("Horizontal", 16),
    Sketcher.Constraint("Horizontal", 18),
    Sketcher.Constraint("Horizontal", 20),
    Sketcher.Constraint("Horizontal", 22),
    Sketcher.Constraint("Horizontal", 24),
    Sketcher.Constraint("Horizontal", 26),
    Sketcher.Constraint("Horizontal", 28),
    Sketcher.Constraint("Horizontal", 30),
    Sketcher.Constraint("Horizontal", 32),
    Sketcher.Constraint("Horizontal", 34),
    Sketcher.Constraint("Horizontal", 36),
    Sketcher.Constraint("Horizontal", 38),
    Sketcher.Constraint("Equal", 3, 5),
    Sketcher.Constraint("Equal", 7, 13),
    Sketcher.Constraint("Equal", 15, 17),
    Sketcher.Constraint("Equal", 19, 21),
    Sketcher.Constraint("Equal", 11, 25),
    Sketcher.Constraint("Equal", 23, 29),
    Sketcher.Constraint("Equal", 31, 33),
    Sketcher.Constraint("Equal", 35, 37),
    Sketcher.Constraint("Horizontal", 3, 3, 5, 3),
    Sketcher.Constraint("Horizontal", 11, 3, 13, 3),
    Sketcher.Constraint("Horizontal", 15, 3, 17, 3),
    Sketcher.Constraint("Vertical", 1, 3, 13, 3),
    Sketcher.Constraint("Vertical", 7, 3, 19, 3),
    Sketcher.Constraint("Vertical", 9, 3, 25, 3),
    Sketcher.Constraint("Vertical", 11, 3, 27, 3),
    Sketcher.Constraint("Vertical", 29, 3, 33, 3),
    Sketcher.Constraint("Vertical", 31, 3, 35, 3),
    Sketcher.Constraint("Vertical", 33, 3, 37, 3),
    Sketcher.Constraint("Vertical", 35, 3, 39, 3),
    Sketcher.Constraint("Equal", 2, 4),
    Sketcher.Constraint("Equal", 14, 16),
    Sketcher.Constraint("Radius", 9, Q("3 mm")),
    Sketcher.Constraint("Radius", 1, Q("1.5 mm")),
    Sketcher.Constraint("DistanceX", 8, 1, 8, 2, Q("10 mm")),
    Sketcher.Constraint("DistanceX", 12, 1, 12, 2, Q("28 mm")),
    Sketcher.Constraint("DistanceX", 20, 1, 20, 2, Q("73 mm")),
    Sketcher.Constraint("DistanceX", 0, 1, 0, 2, Q("37.5 mm")),
    Sketcher.Constraint("DistanceX", 28, 1, 28, 2, Q("21.2 mm")),
    Sketcher.Constraint("DistanceX", -1, 1, 1, 3, Q("95 mm")),
    Sketcher.Constraint("DistanceY", -1, 1, 1, 3, Q("130 mm")),
    Sketcher.Constraint("DistanceX", -1, 1, 7, 3, Q("14 mm")),
    Sketcher.Constraint("DistanceY", -1, 1, 9, 3, Q("122 mm")),
    Sketcher.Constraint("DistanceX", -1, 1, 21, 3, Q("91 mm")),
    Sketcher.Constraint("DistanceY", -1, 1, 21, 3, Q("114 mm")),
    Sketcher.Constraint("DistanceY", -1, 1, 25, 3, Q("95 mm")),
    Sketcher.Constraint("DistanceY", -1, 1, 28, 2, Q("13 mm")),
    Sketcher.Constraint("DistanceY", -1, 1, 32, 2, Q("21 mm")),
    Sketcher.Constraint("DistanceY", -1, 1, 36, 2, Q("29 mm")),
    Sketcher.Constraint("DistanceX", 3, 3, 9, 3, Q("2 mm")),
    Sketcher.Constraint("DistanceX", -1, 1, 29, 3, Q("65.1 mm")),
])
sketch4.setExpression("Constraints[81]", "Params.sketch4_radius")
sketch4.setExpression("Constraints[82]", "Params.sketch4_radius2")
sketch4.setExpression("Constraints[83]", "Params.sketch4_width")
sketch4.setExpression("Constraints[84]", "Params.sketch4_width2")
sketch4.setExpression("Constraints[85]", "Params.sketch4_width3")
pocket3 = body.newObject("PartDesign::Pocket", "Pocket002")
pocket3.Profile = sketch4
pocket3.setExpression("Length", "Params.pocket3_length")
pocket3.Reversed = True

doc.recompute()
